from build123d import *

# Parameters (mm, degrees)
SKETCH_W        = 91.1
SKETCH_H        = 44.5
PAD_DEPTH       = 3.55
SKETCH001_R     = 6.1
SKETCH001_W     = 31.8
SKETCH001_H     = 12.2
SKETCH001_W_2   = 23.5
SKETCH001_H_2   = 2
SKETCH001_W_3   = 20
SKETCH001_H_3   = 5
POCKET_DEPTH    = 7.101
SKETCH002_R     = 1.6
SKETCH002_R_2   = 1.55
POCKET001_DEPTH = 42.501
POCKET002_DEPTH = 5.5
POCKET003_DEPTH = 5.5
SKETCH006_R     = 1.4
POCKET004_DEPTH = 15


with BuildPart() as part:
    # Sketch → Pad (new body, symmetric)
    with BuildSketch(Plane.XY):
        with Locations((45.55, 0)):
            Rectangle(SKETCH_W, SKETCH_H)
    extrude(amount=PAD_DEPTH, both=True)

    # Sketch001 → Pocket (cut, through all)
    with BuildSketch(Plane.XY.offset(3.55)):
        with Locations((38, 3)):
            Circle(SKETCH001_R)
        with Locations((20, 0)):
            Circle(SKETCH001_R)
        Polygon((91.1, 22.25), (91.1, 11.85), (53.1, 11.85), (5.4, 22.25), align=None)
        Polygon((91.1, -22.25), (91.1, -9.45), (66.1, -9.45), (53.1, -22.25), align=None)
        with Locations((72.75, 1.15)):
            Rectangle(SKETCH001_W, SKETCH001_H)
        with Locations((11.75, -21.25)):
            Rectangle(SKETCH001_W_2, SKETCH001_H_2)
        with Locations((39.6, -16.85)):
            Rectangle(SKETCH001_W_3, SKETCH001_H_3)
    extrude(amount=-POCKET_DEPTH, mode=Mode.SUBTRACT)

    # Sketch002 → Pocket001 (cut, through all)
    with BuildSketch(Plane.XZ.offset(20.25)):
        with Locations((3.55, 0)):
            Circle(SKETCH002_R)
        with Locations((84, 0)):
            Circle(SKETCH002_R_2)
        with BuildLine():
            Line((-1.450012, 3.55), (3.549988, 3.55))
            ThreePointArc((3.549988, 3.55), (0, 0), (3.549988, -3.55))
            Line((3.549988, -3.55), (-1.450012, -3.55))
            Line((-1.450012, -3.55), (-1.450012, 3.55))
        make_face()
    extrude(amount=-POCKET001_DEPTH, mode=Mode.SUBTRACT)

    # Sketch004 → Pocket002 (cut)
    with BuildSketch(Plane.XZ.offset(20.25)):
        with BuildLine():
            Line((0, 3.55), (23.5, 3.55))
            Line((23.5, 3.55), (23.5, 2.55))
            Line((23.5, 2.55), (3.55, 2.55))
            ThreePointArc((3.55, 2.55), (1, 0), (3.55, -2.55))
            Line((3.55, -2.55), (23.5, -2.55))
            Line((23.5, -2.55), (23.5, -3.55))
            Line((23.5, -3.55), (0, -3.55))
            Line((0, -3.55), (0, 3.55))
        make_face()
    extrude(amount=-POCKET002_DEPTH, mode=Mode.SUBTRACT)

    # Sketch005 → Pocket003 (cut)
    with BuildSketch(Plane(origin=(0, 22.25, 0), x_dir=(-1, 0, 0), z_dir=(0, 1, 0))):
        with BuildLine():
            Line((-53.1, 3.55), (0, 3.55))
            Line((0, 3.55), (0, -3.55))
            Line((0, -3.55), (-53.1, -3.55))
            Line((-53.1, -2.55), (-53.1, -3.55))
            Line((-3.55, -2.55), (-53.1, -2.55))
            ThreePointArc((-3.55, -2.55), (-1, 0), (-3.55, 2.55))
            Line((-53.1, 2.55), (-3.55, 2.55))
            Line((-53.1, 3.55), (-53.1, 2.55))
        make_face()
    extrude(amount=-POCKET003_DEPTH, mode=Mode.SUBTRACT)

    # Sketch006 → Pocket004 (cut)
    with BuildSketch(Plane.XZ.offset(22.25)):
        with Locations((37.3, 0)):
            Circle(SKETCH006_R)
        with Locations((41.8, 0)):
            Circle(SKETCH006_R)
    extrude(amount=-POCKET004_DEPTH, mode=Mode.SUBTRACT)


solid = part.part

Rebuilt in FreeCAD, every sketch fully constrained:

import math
import FreeCAD as App
import Part
import Sketcher

V = App.Vector

doc = App.newDocument("Part")
params = doc.addObject("Spreadsheet::Sheet", "Params")
for row, (alias, value) in enumerate([
    ("sketch1_width", "91.1 mm"),
    ("sketch1_height", "44.5 mm"),
    ("pad1_length", "7.1 mm"),
    ("sketch2_diameter", "12.2 mm"),
    ("sketch2_width", "38 mm"),
    ("sketch2_width2", "25 mm"),
    ("sketch2_width3", "20 mm"),
    ("sketch2_height", "2 mm"),
    ("sketch3_diameter", "3.2 mm"),
    ("sketch3_diameter2", "3.1 mm"),
    ("sketch3_width", "5 mm"),
    ("sketch3_radius", "3.55 mm"),
    ("sketch4_height", "1 mm"),
    ("sketch4_radius", "2.55 mm"),
    ("sketch4_width", "23.5 mm"),
    ("sketch4_width2", "19.95 mm"),
    ("pocket3_length", "5.5 mm"),
    ("sketch5_height", "1 mm"),
    ("sketch5_radius", "2.55 mm"),
    ("sketch5_width", "53.1 mm"),
    ("sketch5_width2", "49.55 mm"),
    ("pocket4_length", "5.5 mm"),
    ("sketch6_diameter", "2.8 mm"),
    ("pocket5_length", "15 mm"),
], start=1):
    params.set(f"A{row}", alias)
    params.set(f"B{row}", "=" + value)
    params.setAlias(f"B{row}", alias)

body = doc.addObject("PartDesign::Body", "Body")

# Sketch on XY plane
sketch1 = body.newObject("Sketcher::SketchObject", "Sketch")
sketch1.AttachmentSupport = (doc.getObject("XY_Plane"), [""])
sketch1.MapMode = "FlatFace"
sketch1.addGeometry(Part.LineSegment(V(0, 22, 0), V(0, -22, 0)), False)
sketch1.addGeometry(Part.LineSegment(V(0, -22, 0), V(91, -22, 0)), False)
sketch1.addGeometry(Part.LineSegment(V(91, -22, 0), V(91, 22, 0)), False)
sketch1.addGeometry(Part.LineSegment(V(91, 22, 0), V(0, 22, 0)), False)
sketch1.addConstraint(Sketcher.Constraint("Coincident", 0, 2, 1, 1))
sketch1.addConstraint(Sketcher.Constraint("Coincident", 1, 2, 2, 1))
sketch1.addConstraint(Sketcher.Constraint("Coincident", 2, 2, 3, 1))
sketch1.addConstraint(Sketcher.Constraint("Coincident", 3, 2, 0, 1))
sketch1.addConstraint(Sketcher.Constraint("Vertical", 0))
sketch1.addConstraint(Sketcher.Constraint("Horizontal", 1))
sketch1.addConstraint(Sketcher.Constraint("Vertical", 2))
sketch1.addConstraint(Sketcher.Constraint("Horizontal", 3))
sketch1.addConstraint(Sketcher.Constraint("Symmetric", 0, 2, 3, 2, -1, 1))
sketch1.addConstraint(Sketcher.Constraint("DistanceX", 1, 1, 1, 2, 91.1))
sketch1.addConstraint(Sketcher.Constraint("DistanceY", 0, 2, 0, 1, 44.5))
sketch1.setExpression("Constraints[9]", "Params.sketch1_width")
sketch1.setExpression("Constraints[10]", "Params.sketch1_height")
pad1 = body.newObject("PartDesign::Pad", "Pad")
pad1.Profile = sketch1
pad1.setExpression("Length", "Params.pad1_length")
pad1.Midplane = True

# Sketch on XY plane
sketch2 = body.newObject("Sketcher::SketchObject", "Sketch001")
sketch2.AttachmentSupport = (doc.getObject("XY_Plane"), [""])
sketch2.MapMode = "FlatFace"
sketch2.AttachmentOffset = App.Placement(V(0, 0, 3.55), App.Rotation())
sketch2.addGeometry(Part.Circle(V(38, 3, 0), V(0, 0, 1), 6.1), False)
sketch2.addGeometry(Part.Circle(V(20, 0, 0), V(0, 0, 1), 6.1), False)
sketch2.addGeometry(Part.LineSegment(V(91.1, 11.8, 0), V(91.1, 22.2, 0)), False)
sketch2.addGeometry(Part.LineSegment(V(91.1, 22.2, 0), V(5.4, 22.2, 0)), False)
sketch2.addGeometry(Part.LineSegment(V(5.4, 22.2, 0), V(53.1, 11.8, 0)), False)
sketch2.addGeometry(Part.LineSegment(V(53.1, 11.8, 0), V(91.1, 11.8, 0)), False)
sketch2.addGeometry(Part.LineSegment(V(91.1, -22.2, 0), V(91.1, -9.4, 0)), False)
sketch2.addGeometry(Part.LineSegment(V(91.1, -9.4, 0), V(66.1, -9.4, 0)), False)
sketch2.addGeometry(Part.LineSegment(V(66.1, -9.4, 0), V(53.1, -22.2, 0)), False)
sketch2.addGeometry(Part.LineSegment(V(53.1, -22.2, 0), V(91.1, -22.2, 0)), False)
sketch2.addGeometry(Part.LineSegment(V(56.9, 7.2, 0), V(56.9, -5, 0)), False)
sketch2.addGeometry(Part.LineSegment(V(56.9, -5, 0), V(88.7, -5, 0)), False)
sketch2.addGeometry(Part.LineSegment(V(88.7, -5, 0), V(88.7, 7.2, 0)), False)
sketch2.addGeometry(Part.LineSegment(V(88.7, 7.2, 0), V(56.9, 7.2, 0)), False)
sketch2.addGeometry(Part.LineSegment(V(0, -20.2, 0), V(0, -22.2, 0)), False)
sketch2.addGeometry(Part.LineSegment(V(0, -22.2, 0), V(23.5, -22.2, 0)), False)
sketch2.addGeometry(Part.LineSegment(V(23.5, -22.2, 0), V(23.5, -20.2, 0)), False)
sketch2.addGeometry(Part.LineSegment(V(23.5, -20.2, 0), V(0, -20.2, 0)), False)
sketch2.addGeometry(Part.LineSegment(V(29.6, -14.3, 0), V(29.6, -19.4, 0)), False)
sketch2.addGeometry(Part.LineSegment(V(29.6, -19.4, 0), V(49.6, -19.4, 0)), False)
sketch2.addGeometry(Part.LineSegment(V(49.6, -19.4, 0), V(49.6, -14.3, 0)), False)
sketch2.addGeometry(Part.LineSegment(V(49.6, -14.3, 0), V(29.6, -14.3, 0)), False)
sketch2.addConstraint(Sketcher.Constraint("Coincident", 2, 2, 3, 1))
sketch2.addConstraint(Sketcher.Constraint("Coincident", 3, 2, 4, 1))
sketch2.addConstraint(Sketcher.Constraint("Coincident", 4, 2, 5, 1))
sketch2.addConstraint(Sketcher.Constraint("Coincident", 5, 2, 2, 1))
sketch2.addConstraint(Sketcher.Constraint("Coincident", 6, 2, 7, 1))
sketch2.addConstraint(Sketcher.Constraint("Coincident", 7, 2, 8, 1))
sketch2.addConstraint(Sketcher.Constraint("Coincident", 8, 2, 9, 1))
sketch2.addConstraint(Sketcher.Constraint("Coincident", 9, 2, 6, 1))
sketch2.addConstraint(Sketcher.Constraint("Coincident", 10, 2, 11, 1))
sketch2.addConstraint(Sketcher.Constraint("Coincident", 11, 2, 12, 1))
sketch2.addConstraint(Sketcher.Constraint("Coincident", 12, 2, 13, 1))
sketch2.addConstraint(Sketcher.Constraint("Coincident", 13, 2, 10, 1))
sketch2.addConstraint(Sketcher.Constraint("Coincident", 14, 2, 15, 1))
sketch2.addConstraint(Sketcher.Constraint("Coincident", 15, 2, 16, 1))
sketch2.addConstraint(Sketcher.Constraint("Coincident", 16, 2, 17, 1))
sketch2.addConstraint(Sketcher.Constraint("Coincident", 17, 2, 14, 1))
sketch2.addConstraint(Sketcher.Constraint("Coincident", 18, 2, 19, 1))
sketch2.addConstraint(Sketcher.Constraint("Coincident", 19, 2, 20, 1))
sketch2.addConstraint(Sketcher.Constraint("Coincident", 20, 2, 21, 1))
sketch2.addConstraint(Sketcher.Constraint("Coincident", 21, 2, 18, 1))
sketch2.addConstraint(Sketcher.Constraint("Vertical", 2))
sketch2.addConstraint(Sketcher.Constraint("Horizontal", 3))
sketch2.addConstraint(Sketcher.Constraint("Horizontal", 5))
sketch2.addConstraint(Sketcher.Constraint("Vertical", 6))
sketch2.addConstraint(Sketcher.Constraint("Horizontal", 7))
sketch2.addConstraint(Sketcher.Constraint("Horizontal", 9))
sketch2.addConstraint(Sketcher.Constraint("Vertical", 10))
sketch2.addConstraint(Sketcher.Constraint("Horizontal", 11))
sketch2.addConstraint(Sketcher.Constraint("Vertical", 12))
sketch2.addConstraint(Sketcher.Constraint("Horizontal", 13))
sketch2.addConstraint(Sketcher.Constraint("Vertical", 14))
sketch2.addConstraint(Sketcher.Constraint("Horizontal", 15))
sketch2.addConstraint(Sketcher.Constraint("Vertical", 16))
sketch2.addConstraint(Sketcher.Constraint("Horizontal", 17))
sketch2.addConstraint(Sketcher.Constraint("Vertical", 18))
sketch2.addConstraint(Sketcher.Constraint("Horizontal", 19))
sketch2.addConstraint(Sketcher.Constraint("Vertical", 20))
sketch2.addConstraint(Sketcher.Constraint("Horizontal", 21))
sketch2.addConstraint(Sketcher.Constraint("Equal", 0, 1))
sketch2.addConstraint(Sketcher.Constraint("Symmetric", 2, 2, 9, 2, -1))
sketch2.addConstraint(Sketcher.Constraint("PointOnObject", 1, 3, -1))
sketch2.addConstraint(Sketcher.Constraint("PointOnObject", 14, 2, -2))
sketch2.addConstraint(Sketcher.Constraint("Horizontal", 9, 2, 14, 2))
sketch2.addConstraint(Sketcher.Constraint("Vertical", 4, 2, 8, 2))
sketch2.addConstraint(Sketcher.Constraint("Diameter", 0, 12.2))
sketch2.addConstraint(Sketcher.Constraint("DistanceX", 5, 1, 5, 2, 38.0))
sketch2.addConstraint(Sketcher.Constraint("DistanceX", 7, 2, 7, 1, 25.0))
sketch2.addConstraint(Sketcher.Constraint("DistanceX", 19, 1, 19, 2, 20.0))
sketch2.addConstraint(Sketcher.Constraint("DistanceY", 14, 2, 14, 1, 2.0))
sketch2.addConstraint(Sketcher.Constraint("DistanceY", 18, 2, 18, 1, 5.0))
sketch2.addConstraint(Sketcher.Constraint("DistanceX", 3, 2, 3, 1, 85.7))
sketch2.addConstraint(Sketcher.Constraint("DistanceX", 11, 1, 11, 2, 31.8))
sketch2.addConstraint(Sketcher.Constraint("DistanceX", 15, 1, 15, 2, 23.5))
sketch2.addConstraint(Sketcher.Constraint("DistanceY", 2, 1, 2, 2, 10.4))
sketch2.addConstraint(Sketcher.Constraint("DistanceY", 6, 1, 6, 2, 12.8))
sketch2.addConstraint(Sketcher.Constraint("DistanceY", 10, 2, 10, 1, 12.2))
sketch2.addConstraint(Sketcher.Constraint("DistanceX", -1, 1, 0, 3, 38.0))
sketch2.addConstraint(Sketcher.Constraint("DistanceY", -1, 1, 0, 3, 3.0))
sketch2.addConstraint(Sketcher.Constraint("DistanceX", -1, 1, 1, 3, 20.0))
sketch2.addConstraint(Sketcher.Constraint("DistanceY", 12, 2, 2, 2, 15.0))
sketch2.addConstraint(Sketcher.Constraint("DistanceX", -1, 1, 2, 2, 91.1))
sketch2.addConstraint(Sketcher.Constraint("DistanceX", -1, 1, 18, 2, 29.6))
sketch2.addConstraint(Sketcher.Constraint("DistanceY", 6, 2, 5, 2, 21.3))
sketch2.addConstraint(Sketcher.Constraint("DistanceY", 16, 2, 18, 2, 0.9))
sketch2.addConstraint(Sketcher.Constraint("DistanceX", -1, 1, 10, 2, 56.85))
sketch2.setExpression("Constraints[44]", "Params.sketch2_diameter")
sketch2.setExpression("Constraints[45]", "Params.sketch2_width")
sketch2.setExpression("Constraints[46]", "Params.sketch2_width2")
sketch2.setExpression("Constraints[47]", "Params.sketch2_width3")
sketch2.setExpression("Constraints[48]", "Params.sketch2_height")
pocket1 = body.newObject("PartDesign::Pocket", "Pocket")
pocket1.Profile = sketch2
pocket1.Type = "ThroughAll"

# Sketch on XZ plane
sketch3 = body.newObject("Sketcher::SketchObject", "Sketch002")
sketch3.AttachmentSupport = (doc.getObject("XZ_Plane"), [""])
sketch3.MapMode = "FlatFace"
sketch3.AttachmentOffset = App.Placement(V(0, 0, 20.25), App.Rotation())
sketch3.addGeometry(Part.Circle(V(3.5, 0, 0), V(0, 0, 1), 1.6), False)
sketch3.addGeometry(Part.Circle(V(84, 0, 0), V(0, 0, 1), 1.6), False)
sketch3.addGeometry(Part.LineSegment(V(3.5, 3.5, 0), V(-1.5, 3.5, 0)), False)
sketch3.addGeometry(Part.LineSegment(V(-1.5, 3.5, 0), V(-1.5, -3.5, 0)), False)
sketch3.addGeometry(Part.LineSegment(V(-1.5, -3.5, 0), V(3.5, -3.5, 0)), False)
sketch3.addGeometry(Part.ArcOfCircle(Part.Circle(V(3.5, 0, 0), V(0, 0, 1), 3.5), math.radians(90), math.radians(270)), False)
sketch3.addConstraint(Sketcher.Constraint("Coincident", 2, 2, 3, 1))
sketch3.addConstraint(Sketcher.Constraint("Coincident", 3, 2, 4, 1))
sketch3.addConstraint(Sketcher.Constraint("Coincident", 4, 2, 5, 2))
sketch3.addConstraint(Sketcher.Constraint("Coincident", 5, 1, 2, 1))
sketch3.addConstraint(Sketcher.Constraint("Horizontal", 2))
sketch3.addConstraint(Sketcher.Constraint("Vertical", 3))
sketch3.addConstraint(Sketcher.Constraint("Horizontal", 4))
sketch3.addConstraint(Sketcher.Constraint("Coincident", 5, 3, 0, 3))
sketch3.addConstraint(Sketcher.Constraint("Symmetric", 4, 2, 5, 1, -1))
sketch3.addConstraint(Sketcher.Constraint("PointOnObject", 1, 3, -1))
sketch3.addConstraint(Sketcher.Constraint("Diameter", 0, 3.2))
sketch3.addConstraint(Sketcher.Constraint("Diameter", 1, 3.1))
sketch3.addConstraint(Sketcher.Constraint("DistanceX", 2, 2, 2, 1, 5.0))
sketch3.addConstraint(Sketcher.Constraint("Radius", 5, 3.55))
sketch3.addConstraint(Sketcher.Constraint("DistanceX", -1, 1, 1, 3, 84.0))
sketch3.addConstraint(Sketcher.Constraint("DistanceX", -1, 1, 0, 3, 3.55))
sketch3.addConstraint(Sketcher.Constraint("DistanceX", -1, 1, 5, 1, 3.549988))
sketch3.setExpression("Constraints[10]", "Params.sketch3_diameter")
sketch3.setExpression("Constraints[11]", "Params.sketch3_diameter2")
sketch3.setExpression("Constraints[12]", "Params.sketch3_width")
sketch3.setExpression("Constraints[13]", "Params.sketch3_radius")
pocket2 = body.newObject("PartDesign::Pocket", "Pocket001")
pocket2.Profile = sketch3
pocket2.Type = "ThroughAll"

# Sketch on XZ plane
sketch4 = body.newObject("Sketcher::SketchObject", "Sketch003")
sketch4.AttachmentSupport = (doc.getObject("XZ_Plane"), [""])
sketch4.MapMode = "FlatFace"
sketch4.AttachmentOffset = App.Placement(V(0, 0, 20.25), App.Rotation())
sketch4.addGeometry(Part.LineSegment(V(23.5, 3.5, 0), V(0, 3.5, 0)), False)
sketch4.addGeometry(Part.LineSegment(V(0, 3.5, 0), V(0, -3.5, 0)), False)
sketch4.addGeometry(Part.LineSegment(V(0, -3.5, 0), V(23.5, -3.5, 0)), False)
sketch4.addGeometry(Part.LineSegment(V(23.5, -3.5, 0), V(23.5, -2.5, 0)), False)
sketch4.addGeometry(Part.LineSegment(V(23.5, -2.5, 0), V(3.5, -2.5, 0)), False)
sketch4.addGeometry(Part.ArcOfCircle(Part.Circle(V(3.5, 0, 0), V(0, 0, 1), 2.5), math.radians(90), math.radians(270)), False)
sketch4.addGeometry(Part.LineSegment(V(3.5, 2.5, 0), V(23.5, 2.5, 0)), False)
sketch4.addGeometry(Part.LineSegment(V(23.5, 2.5, 0), V(23.5, 3.5, 0)), False)
sketch4.addConstraint(Sketcher.Constraint("Coincident", 0, 2, 1, 1))
sketch4.addConstraint(Sketcher.Constraint("Coincident", 1, 2, 2, 1))
sketch4.addConstraint(Sketcher.Constraint("Coincident", 2, 2, 3, 1))
sketch4.addConstraint(Sketcher.Constraint("Coincident", 3, 2, 4, 1))
sketch4.addConstraint(Sketcher.Constraint("Tangent", 4, 2, 5, 2))
sketch4.addConstraint(Sketcher.Constraint("Tangent", 5, 1, 6, 1))
sketch4.addConstraint(Sketcher.Constraint("Coincident", 6, 2, 7, 1))
sketch4.addConstraint(Sketcher.Constraint("Coincident", 7, 2, 0, 1))
sketch4.addConstraint(Sketcher.Constraint("Horizontal", 0))
sketch4.addConstraint(Sketcher.Constraint("Vertical", 1))
sketch4.addConstraint(Sketcher.Constraint("Horizontal", 2))
sketch4.addConstraint(Sketcher.Constraint("Vertical", 3))
sketch4.addConstraint(Sketcher.Constraint("Horizontal", 4))
sketch4.addConstraint(Sketcher.Constraint("Horizontal", 6))
sketch4.addConstraint(Sketcher.Constraint("Vertical", 7))
sketch4.addConstraint(Sketcher.Constraint("Symmetric", 0, 2, 1, 2, -1, 1))
sketch4.addConstraint(Sketcher.Constraint("Symmetric", 3, 2, 6, 2, -1))
sketch4.addConstraint(Sketcher.Constraint("DistanceY", 3, 1, 3, 2, 1.0))
sketch4.addConstraint(Sketcher.Constraint("Radius", 5, 2.55))
sketch4.addConstraint(Sketcher.Constraint("DistanceX", 0, 2, 0, 1, 23.5))
sketch4.addConstraint(Sketcher.Constraint("DistanceX", 4, 2, 4, 1, 19.95))
sketch4.setExpression("Constraints[17]", "Params.sketch4_height")
sketch4.setExpression("Constraints[18]", "Params.sketch4_radius")
sketch4.setExpression("Constraints[19]", "Params.sketch4_width")
sketch4.setExpression("Constraints[20]", "Params.sketch4_width2")
pocket3 = body.newObject("PartDesign::Pocket", "Pocket002")
pocket3.Profile = sketch4
pocket3.setExpression("Length", "Params.pocket3_length")

# Sketch on XZ plane
sketch5 = body.newObject("Sketcher::SketchObject", "Sketch004")
sketch5.AttachmentSupport = (doc.getObject("XZ_Plane"), [""])
sketch5.MapMode = "FlatFace"
sketch5.AttachmentOffset = App.Placement(V(0, 0, -22.25), App.Rotation())
sketch5.addGeometry(Part.LineSegment(V(0, 3.5, 0), V(53.1, 3.5, 0)), False)
sketch5.addGeometry(Part.LineSegment(V(53.1, 3.5, 0), V(53.1, 2.5, 0)), False)
sketch5.addGeometry(Part.LineSegment(V(53.1, 2.5, 0), V(3.5, 2.5, 0)), False)
sketch5.addGeometry(Part.ArcOfCircle(Part.Circle(V(3.5, 0, 0), V(0, 0, 1), 2.5), math.radians(90), math.radians(270)), False)
sketch5.addGeometry(Part.LineSegment(V(3.5, -2.5, 0), V(53.1, -2.5, 0)), False)
sketch5.addGeometry(Part.LineSegment(V(53.1, -2.5, 0), V(53.1, -3.5, 0)), False)
sketch5.addGeometry(Part.LineSegment(V(53.1, -3.5, 0), V(0, -3.5, 0)), False)
sketch5.addGeometry(Part.LineSegment(V(0, -3.5, 0), V(0, 3.5, 0)), False)
sketch5.addConstraint(Sketcher.Constraint("Coincident", 0, 2, 1, 1))
sketch5.addConstraint(Sketcher.Constraint("Coincident", 1, 2, 2, 1))
sketch5.addConstraint(Sketcher.Constraint("Tangent", 2, 2, 3, 1))
sketch5.addConstraint(Sketcher.Constraint("Tangent", 3, 2, 4, 1))
sketch5.addConstraint(Sketcher.Constraint("Coincident", 4, 2, 5, 1))
sketch5.addConstraint(Sketcher.Constraint("Coincident", 5, 2, 6, 1))
sketch5.addConstraint(Sketcher.Constraint("Coincident", 6, 2, 7, 1))
sketch5.addConstraint(Sketcher.Constraint("Coincident", 7, 2, 0, 1))
sketch5.addConstraint(Sketcher.Constraint("Horizontal", 0))
sketch5.addConstraint(Sketcher.Constraint("Vertical", 1))
sketch5.addConstraint(Sketcher.Constraint("Horizontal", 2))
sketch5.addConstraint(Sketcher.Constraint("Horizontal", 4))
sketch5.addConstraint(Sketcher.Constraint("Vertical", 5))
sketch5.addConstraint(Sketcher.Constraint("Horizontal", 6))
sketch5.addConstraint(Sketcher.Constraint("Vertical", 7))
sketch5.addConstraint(Sketcher.Constraint("Symmetric", 6, 2, 7, 2, -1, 1))
sketch5.addConstraint(Sketcher.Constraint("Symmetric", 1, 2, 4, 2, -1))
sketch5.addConstraint(Sketcher.Constraint("DistanceY", 1, 2, 1, 1, 1.0))
sketch5.addConstraint(Sketcher.Constraint("Radius", 3, 2.55))
sketch5.addConstraint(Sketcher.Constraint("DistanceX", 0, 1, 0, 2, 53.1))
sketch5.addConstraint(Sketcher.Constraint("DistanceX", 2, 2, 2, 1, 49.55))
sketch5.setExpression("Constraints[17]", "Params.sketch5_height")
sketch5.setExpression("Constraints[18]", "Params.sketch5_radius")
sketch5.setExpression("Constraints[19]", "Params.sketch5_width")
sketch5.setExpression("Constraints[20]", "Params.sketch5_width2")
pocket4 = body.newObject("PartDesign::Pocket", "Pocket003")
pocket4.Profile = sketch5
pocket4.setExpression("Length", "Params.pocket4_length")
pocket4.Reversed = True

# Sketch on XZ plane
sketch6 = body.newObject("Sketcher::SketchObject", "Sketch005")
sketch6.AttachmentSupport = (doc.getObject("XZ_Plane"), [""])
sketch6.MapMode = "FlatFace"
sketch6.AttachmentOffset = App.Placement(V(0, 0, 22.25), App.Rotation())
sketch6.addGeometry(Part.Circle(V(37.3, 0, 0), V(0, 0, 1), 1.4), False)
sketch6.addGeometry(Part.Circle(V(41.8, 0, 0), V(0, 0, 1), 1.4), False)
sketch6.addConstraint(Sketcher.Constraint("Equal", 0, 1))
sketch6.addConstraint(Sketcher.Constraint("PointOnObject", 0, 3, -1))
sketch6.addConstraint(Sketcher.Constraint("PointOnObject", 1, 3, -1))
sketch6.addConstraint(Sketcher.Constraint("Diameter", 0, 2.8))
sketch6.addConstraint(Sketcher.Constraint("DistanceX", -1, 1, 0, 3, 37.3))
sketch6.addConstraint(Sketcher.Constraint("DistanceX", -1, 1, 1, 3, 41.8))
sketch6.setExpression("Constraints[3]", "Params.sketch6_diameter")
pocket5 = body.newObject("PartDesign::Pocket", "Pocket004")
pocket5.Profile = sketch6
pocket5.setExpression("Length", "Params.pocket5_length")

doc.recompute()
